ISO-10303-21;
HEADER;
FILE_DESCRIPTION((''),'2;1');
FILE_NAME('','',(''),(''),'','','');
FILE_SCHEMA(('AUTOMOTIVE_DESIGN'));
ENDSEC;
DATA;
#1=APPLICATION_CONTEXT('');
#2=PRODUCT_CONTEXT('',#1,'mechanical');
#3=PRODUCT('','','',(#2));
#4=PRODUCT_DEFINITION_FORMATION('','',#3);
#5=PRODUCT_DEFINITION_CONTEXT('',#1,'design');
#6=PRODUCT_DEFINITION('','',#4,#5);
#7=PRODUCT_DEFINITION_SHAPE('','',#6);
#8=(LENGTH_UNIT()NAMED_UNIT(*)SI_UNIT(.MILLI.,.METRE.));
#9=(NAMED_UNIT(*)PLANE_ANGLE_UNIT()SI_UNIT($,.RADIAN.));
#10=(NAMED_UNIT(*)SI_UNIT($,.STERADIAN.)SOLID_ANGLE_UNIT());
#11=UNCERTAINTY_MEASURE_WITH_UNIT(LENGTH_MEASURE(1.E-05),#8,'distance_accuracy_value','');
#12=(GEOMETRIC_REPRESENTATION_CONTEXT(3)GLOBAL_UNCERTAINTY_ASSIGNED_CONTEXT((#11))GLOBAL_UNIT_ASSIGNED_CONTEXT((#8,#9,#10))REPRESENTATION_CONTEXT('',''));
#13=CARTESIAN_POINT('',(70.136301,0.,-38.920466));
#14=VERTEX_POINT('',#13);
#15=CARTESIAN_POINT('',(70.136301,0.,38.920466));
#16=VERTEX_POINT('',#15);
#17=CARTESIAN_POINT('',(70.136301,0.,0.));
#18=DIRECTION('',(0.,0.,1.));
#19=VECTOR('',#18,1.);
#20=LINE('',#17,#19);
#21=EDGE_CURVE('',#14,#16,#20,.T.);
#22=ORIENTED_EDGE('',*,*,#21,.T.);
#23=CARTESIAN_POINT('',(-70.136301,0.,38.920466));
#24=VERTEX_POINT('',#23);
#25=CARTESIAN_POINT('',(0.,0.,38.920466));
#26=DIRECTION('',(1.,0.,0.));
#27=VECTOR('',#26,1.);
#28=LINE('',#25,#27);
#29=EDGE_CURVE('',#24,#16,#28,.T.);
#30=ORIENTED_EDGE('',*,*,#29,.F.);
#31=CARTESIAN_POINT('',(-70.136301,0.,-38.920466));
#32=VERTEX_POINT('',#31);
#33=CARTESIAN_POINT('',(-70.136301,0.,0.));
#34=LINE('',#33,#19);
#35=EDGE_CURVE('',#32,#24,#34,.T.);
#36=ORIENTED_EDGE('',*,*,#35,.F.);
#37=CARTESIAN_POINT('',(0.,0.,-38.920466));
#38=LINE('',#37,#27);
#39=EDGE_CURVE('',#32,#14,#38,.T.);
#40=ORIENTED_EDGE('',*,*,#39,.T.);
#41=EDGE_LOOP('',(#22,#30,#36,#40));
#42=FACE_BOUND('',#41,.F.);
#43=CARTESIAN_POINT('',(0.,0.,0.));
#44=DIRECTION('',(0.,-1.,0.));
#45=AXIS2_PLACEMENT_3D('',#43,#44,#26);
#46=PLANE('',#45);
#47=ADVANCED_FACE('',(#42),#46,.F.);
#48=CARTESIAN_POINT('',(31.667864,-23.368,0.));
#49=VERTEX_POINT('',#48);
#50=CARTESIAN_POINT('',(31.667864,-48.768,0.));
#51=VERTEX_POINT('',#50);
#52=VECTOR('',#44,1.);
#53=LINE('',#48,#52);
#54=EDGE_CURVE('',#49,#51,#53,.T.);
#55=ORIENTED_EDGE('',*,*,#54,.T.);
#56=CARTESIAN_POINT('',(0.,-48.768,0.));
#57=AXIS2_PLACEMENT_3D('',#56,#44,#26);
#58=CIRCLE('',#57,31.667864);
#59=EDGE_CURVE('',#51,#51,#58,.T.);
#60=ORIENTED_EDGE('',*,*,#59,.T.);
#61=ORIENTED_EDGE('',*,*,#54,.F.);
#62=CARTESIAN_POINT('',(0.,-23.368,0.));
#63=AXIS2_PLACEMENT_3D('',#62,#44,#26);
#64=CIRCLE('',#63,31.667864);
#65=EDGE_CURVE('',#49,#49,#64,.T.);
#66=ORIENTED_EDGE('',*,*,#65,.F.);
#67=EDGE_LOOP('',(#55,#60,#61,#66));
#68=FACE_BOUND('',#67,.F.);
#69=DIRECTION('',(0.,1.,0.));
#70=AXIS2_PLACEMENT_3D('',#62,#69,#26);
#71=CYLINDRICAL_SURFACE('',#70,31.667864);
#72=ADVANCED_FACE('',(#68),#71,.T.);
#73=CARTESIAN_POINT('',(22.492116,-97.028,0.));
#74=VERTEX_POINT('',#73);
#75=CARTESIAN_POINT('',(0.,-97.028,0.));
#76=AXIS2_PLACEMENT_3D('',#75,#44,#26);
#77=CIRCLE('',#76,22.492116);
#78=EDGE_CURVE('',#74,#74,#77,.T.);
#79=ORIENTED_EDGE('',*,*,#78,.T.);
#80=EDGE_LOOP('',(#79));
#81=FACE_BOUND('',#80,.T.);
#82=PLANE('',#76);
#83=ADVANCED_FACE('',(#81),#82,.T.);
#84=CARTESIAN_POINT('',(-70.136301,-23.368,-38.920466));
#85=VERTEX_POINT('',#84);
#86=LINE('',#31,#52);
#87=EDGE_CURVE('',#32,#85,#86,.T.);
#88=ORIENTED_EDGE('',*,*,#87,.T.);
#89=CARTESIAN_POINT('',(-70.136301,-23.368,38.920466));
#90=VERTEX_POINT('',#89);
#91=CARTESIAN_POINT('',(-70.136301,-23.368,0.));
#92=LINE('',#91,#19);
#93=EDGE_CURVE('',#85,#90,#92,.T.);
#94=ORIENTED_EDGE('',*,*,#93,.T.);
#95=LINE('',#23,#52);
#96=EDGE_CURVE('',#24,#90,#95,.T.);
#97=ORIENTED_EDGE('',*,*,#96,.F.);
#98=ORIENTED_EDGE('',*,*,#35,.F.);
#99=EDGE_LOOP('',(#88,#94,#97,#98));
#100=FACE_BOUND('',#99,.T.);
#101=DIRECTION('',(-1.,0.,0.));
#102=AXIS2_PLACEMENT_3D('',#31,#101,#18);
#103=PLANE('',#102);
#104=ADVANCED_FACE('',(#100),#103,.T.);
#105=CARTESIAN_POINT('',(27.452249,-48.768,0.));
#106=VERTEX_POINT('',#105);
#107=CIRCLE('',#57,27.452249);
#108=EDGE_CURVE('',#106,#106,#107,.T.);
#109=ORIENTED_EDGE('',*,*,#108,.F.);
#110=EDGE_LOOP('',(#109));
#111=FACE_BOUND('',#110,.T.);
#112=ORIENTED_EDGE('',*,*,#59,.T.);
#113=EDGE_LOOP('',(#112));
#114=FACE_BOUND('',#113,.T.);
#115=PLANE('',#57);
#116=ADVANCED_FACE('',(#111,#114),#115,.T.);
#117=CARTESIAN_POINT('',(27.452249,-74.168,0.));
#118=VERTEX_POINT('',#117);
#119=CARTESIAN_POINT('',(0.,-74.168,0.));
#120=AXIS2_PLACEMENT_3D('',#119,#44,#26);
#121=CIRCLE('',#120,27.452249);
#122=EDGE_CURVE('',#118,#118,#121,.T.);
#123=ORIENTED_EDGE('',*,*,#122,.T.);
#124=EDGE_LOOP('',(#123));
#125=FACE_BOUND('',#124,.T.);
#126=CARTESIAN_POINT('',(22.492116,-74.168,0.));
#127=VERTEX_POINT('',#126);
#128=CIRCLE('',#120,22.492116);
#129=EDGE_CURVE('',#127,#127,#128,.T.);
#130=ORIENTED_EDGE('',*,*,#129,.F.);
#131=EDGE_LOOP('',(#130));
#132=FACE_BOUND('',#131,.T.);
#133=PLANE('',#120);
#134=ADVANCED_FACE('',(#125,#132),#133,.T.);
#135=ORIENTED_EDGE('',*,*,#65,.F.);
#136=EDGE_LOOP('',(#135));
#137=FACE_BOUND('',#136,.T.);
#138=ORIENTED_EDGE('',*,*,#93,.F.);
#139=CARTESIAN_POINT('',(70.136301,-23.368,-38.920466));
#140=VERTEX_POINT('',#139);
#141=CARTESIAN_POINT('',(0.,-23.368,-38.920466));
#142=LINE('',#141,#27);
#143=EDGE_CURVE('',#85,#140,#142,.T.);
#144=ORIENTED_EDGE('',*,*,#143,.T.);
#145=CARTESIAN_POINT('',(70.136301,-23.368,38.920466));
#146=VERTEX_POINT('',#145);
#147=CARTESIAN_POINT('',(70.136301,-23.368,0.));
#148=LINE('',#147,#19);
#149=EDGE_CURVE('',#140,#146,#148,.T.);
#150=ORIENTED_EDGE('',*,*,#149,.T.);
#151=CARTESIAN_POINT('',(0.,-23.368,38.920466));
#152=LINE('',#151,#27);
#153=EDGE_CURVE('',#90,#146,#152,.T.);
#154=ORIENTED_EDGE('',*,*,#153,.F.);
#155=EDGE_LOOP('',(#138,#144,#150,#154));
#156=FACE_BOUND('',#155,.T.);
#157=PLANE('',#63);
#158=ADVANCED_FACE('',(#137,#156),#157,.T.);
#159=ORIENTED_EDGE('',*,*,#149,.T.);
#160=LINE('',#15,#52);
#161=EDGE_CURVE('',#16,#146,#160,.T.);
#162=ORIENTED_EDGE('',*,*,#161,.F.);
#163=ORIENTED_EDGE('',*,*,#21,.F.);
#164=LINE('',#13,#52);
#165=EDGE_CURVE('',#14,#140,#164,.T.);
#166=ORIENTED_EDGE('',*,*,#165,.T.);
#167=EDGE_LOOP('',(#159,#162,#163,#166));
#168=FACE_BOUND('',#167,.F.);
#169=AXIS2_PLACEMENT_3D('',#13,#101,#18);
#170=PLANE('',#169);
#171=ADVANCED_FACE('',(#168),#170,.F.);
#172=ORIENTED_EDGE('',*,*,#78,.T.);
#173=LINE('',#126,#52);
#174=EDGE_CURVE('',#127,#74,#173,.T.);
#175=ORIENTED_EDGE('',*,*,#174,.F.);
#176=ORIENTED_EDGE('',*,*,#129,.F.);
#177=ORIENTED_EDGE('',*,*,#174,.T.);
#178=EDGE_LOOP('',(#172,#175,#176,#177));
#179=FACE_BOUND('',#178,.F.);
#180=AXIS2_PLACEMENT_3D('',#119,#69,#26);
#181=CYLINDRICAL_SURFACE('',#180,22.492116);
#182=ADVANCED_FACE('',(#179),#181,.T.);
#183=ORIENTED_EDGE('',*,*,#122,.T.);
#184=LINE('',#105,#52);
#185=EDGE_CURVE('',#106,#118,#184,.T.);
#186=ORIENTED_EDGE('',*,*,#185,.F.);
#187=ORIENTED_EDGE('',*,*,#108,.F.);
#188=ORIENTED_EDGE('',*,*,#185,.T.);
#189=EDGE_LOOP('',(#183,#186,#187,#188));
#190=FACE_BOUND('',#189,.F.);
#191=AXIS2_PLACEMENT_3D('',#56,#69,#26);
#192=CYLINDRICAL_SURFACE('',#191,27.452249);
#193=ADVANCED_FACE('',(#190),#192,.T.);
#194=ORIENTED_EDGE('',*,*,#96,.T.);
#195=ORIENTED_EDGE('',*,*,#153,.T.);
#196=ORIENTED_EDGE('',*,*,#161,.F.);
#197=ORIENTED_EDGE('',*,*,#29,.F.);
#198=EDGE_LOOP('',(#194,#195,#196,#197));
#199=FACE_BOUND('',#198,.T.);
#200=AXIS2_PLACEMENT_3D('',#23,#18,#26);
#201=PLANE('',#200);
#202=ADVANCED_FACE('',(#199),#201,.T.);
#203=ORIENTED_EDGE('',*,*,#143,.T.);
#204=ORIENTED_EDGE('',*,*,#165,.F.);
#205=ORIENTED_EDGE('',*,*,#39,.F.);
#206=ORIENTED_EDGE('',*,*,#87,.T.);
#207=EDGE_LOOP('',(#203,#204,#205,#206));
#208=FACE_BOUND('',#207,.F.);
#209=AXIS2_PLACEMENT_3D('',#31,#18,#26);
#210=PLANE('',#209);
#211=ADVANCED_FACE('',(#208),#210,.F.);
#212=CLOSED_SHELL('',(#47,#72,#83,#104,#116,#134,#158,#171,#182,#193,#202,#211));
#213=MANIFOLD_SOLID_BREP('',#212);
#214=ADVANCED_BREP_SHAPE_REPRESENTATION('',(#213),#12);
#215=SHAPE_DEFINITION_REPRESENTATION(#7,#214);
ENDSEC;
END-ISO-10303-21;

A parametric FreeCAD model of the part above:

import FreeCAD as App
import Part
import Sketcher

V = App.Vector
Q = App.Units.Quantity

doc = App.newDocument("Part")
params = doc.addObject("Spreadsheet::Sheet", "Params")
for row, (alias, value) in enumerate([
    ("pad1_length", "0.92 in"),
    ("pad2_length", "1 in"),
    ("pad3_length", "1 in"),
    ("pad4_length", "0.9 in"),
], start=1):
    params.set(f"A{row}", alias)
    params.set(f"B{row}", "=" + value)
    params.setAlias(f"B{row}", alias)

body = doc.addObject("PartDesign::Body", "Body")

# Sketch on XZ plane
sketch1 = body.newObject("Sketcher::SketchObject", "Sketch")
sketch1.AttachmentSupport = (doc.getObject("XZ_Plane"), [""])
sketch1.MapMode = "FlatFace"
sketch1.addGeometry([
    Part.LineSegment(V(-70, 39, 0), V(-70, -39, 0)),
    Part.LineSegment(V(-70, -39, 0), V(70, -39, 0)),
    Part.LineSegment(V(70, -39, 0), V(70, 39, 0)),
    Part.LineSegment(V(70, 39, 0), V(-70, 39, 0)),
], False)
sketch1.addConstraint([
    Sketcher.Constraint("Coincident", 0, 2, 1, 1),
    Sketcher.Constraint("Coincident", 1, 2, 2, 1),
    Sketcher.Constraint("Coincident", 2, 2, 3, 1),
    Sketcher.Constraint("Coincident", 3, 2, 0, 1),
    Sketcher.Constraint("Vertical", 0),
    Sketcher.Constraint("Horizontal", 1),
    Sketcher.Constraint("Vertical", 2),
    Sketcher.Constraint("Horizontal", 3),
    Sketcher.Constraint("Symmetric", 0, 2, 2, 2, -1, 1),
    Sketcher.Constraint("DistanceX", 1, 1, 1, 2, Q("140.272602 mm")),
    Sketcher.Constraint("DistanceY", 0, 2, 0, 1, Q("77.840932 mm")),
])
pad1 = body.newObject("PartDesign::Pad", "Pad")
pad1.Profile = sketch1
pad1.setExpression("Length", "Params.pad1_length")

# Sketch on XZ plane
sketch2 = body.newObject("Sketcher::SketchObject", "Sketch001")
sketch2.AttachmentSupport = (doc.getObject("XZ_Plane"), [""])
sketch2.MapMode = "FlatFace"
sketch2.AttachmentOffset = App.Placement(V(0, 0, 0.92 * 25.4), App.Rotation())
sketch2.addGeometry(Part.Circle(V(0, 0, 0), V(0, 0, 1), 32), False)
sketch2.addConstraint([
    Sketcher.Constraint("Coincident", 0, 3, -1, 1),
    Sketcher.Constraint("Diameter", 0, Q("63.335728 mm")),
])
pad2 = body.newObject("PartDesign::Pad", "Pad001")
pad2.Profile = sketch2
pad2.setExpression("Length", "Params.pad2_length")

# Sketch on XZ plane
sketch3 = body.newObject("Sketcher::SketchObject", "Sketch002")
sketch3.AttachmentSupport = (doc.getObject("XZ_Plane"), [""])
sketch3.MapMode = "FlatFace"
sketch3.AttachmentOffset = App.Placement(V(0, 0, 1.92 * 25.4), App.Rotation())
sketch3.addGeometry(Part.Circle(V(0, 0, 0), V(0, 0, 1), 27), False)
sketch3.addConstraint([
    Sketcher.Constraint("Coincident", 0, 3, -1, 1),
    Sketcher.Constraint("Diameter", 0, Q("54.904498 mm")),
])
pad3 = body.newObject("PartDesign::Pad", "Pad002")
pad3.Profile = sketch3
pad3.setExpression("Length", "Params.pad3_length")

# Sketch on XZ plane
sketch4 = body.newObject("Sketcher::SketchObject", "Sketch003")
sketch4.AttachmentSupport = (doc.getObject("XZ_Plane"), [""])
sketch4.MapMode = "FlatFace"
sketch4.AttachmentOffset = App.Placement(V(0, 0, 2.92 * 25.4), App.Rotation())
sketch4.addGeometry(Part.Circle(V(0, 0, 0), V(0, 0, 1), 22), False)
sketch4.addConstraint([
    Sketcher.Constraint("Coincident", 0, 3, -1, 1),
    Sketcher.Constraint("Diameter", 0, Q("44.984232 mm")),
])
pad4 = body.newObject("PartDesign::Pad", "Pad003")
pad4.Profile = sketch4
pad4.setExpression("Length", "Params.pad4_length")

doc.recompute()
